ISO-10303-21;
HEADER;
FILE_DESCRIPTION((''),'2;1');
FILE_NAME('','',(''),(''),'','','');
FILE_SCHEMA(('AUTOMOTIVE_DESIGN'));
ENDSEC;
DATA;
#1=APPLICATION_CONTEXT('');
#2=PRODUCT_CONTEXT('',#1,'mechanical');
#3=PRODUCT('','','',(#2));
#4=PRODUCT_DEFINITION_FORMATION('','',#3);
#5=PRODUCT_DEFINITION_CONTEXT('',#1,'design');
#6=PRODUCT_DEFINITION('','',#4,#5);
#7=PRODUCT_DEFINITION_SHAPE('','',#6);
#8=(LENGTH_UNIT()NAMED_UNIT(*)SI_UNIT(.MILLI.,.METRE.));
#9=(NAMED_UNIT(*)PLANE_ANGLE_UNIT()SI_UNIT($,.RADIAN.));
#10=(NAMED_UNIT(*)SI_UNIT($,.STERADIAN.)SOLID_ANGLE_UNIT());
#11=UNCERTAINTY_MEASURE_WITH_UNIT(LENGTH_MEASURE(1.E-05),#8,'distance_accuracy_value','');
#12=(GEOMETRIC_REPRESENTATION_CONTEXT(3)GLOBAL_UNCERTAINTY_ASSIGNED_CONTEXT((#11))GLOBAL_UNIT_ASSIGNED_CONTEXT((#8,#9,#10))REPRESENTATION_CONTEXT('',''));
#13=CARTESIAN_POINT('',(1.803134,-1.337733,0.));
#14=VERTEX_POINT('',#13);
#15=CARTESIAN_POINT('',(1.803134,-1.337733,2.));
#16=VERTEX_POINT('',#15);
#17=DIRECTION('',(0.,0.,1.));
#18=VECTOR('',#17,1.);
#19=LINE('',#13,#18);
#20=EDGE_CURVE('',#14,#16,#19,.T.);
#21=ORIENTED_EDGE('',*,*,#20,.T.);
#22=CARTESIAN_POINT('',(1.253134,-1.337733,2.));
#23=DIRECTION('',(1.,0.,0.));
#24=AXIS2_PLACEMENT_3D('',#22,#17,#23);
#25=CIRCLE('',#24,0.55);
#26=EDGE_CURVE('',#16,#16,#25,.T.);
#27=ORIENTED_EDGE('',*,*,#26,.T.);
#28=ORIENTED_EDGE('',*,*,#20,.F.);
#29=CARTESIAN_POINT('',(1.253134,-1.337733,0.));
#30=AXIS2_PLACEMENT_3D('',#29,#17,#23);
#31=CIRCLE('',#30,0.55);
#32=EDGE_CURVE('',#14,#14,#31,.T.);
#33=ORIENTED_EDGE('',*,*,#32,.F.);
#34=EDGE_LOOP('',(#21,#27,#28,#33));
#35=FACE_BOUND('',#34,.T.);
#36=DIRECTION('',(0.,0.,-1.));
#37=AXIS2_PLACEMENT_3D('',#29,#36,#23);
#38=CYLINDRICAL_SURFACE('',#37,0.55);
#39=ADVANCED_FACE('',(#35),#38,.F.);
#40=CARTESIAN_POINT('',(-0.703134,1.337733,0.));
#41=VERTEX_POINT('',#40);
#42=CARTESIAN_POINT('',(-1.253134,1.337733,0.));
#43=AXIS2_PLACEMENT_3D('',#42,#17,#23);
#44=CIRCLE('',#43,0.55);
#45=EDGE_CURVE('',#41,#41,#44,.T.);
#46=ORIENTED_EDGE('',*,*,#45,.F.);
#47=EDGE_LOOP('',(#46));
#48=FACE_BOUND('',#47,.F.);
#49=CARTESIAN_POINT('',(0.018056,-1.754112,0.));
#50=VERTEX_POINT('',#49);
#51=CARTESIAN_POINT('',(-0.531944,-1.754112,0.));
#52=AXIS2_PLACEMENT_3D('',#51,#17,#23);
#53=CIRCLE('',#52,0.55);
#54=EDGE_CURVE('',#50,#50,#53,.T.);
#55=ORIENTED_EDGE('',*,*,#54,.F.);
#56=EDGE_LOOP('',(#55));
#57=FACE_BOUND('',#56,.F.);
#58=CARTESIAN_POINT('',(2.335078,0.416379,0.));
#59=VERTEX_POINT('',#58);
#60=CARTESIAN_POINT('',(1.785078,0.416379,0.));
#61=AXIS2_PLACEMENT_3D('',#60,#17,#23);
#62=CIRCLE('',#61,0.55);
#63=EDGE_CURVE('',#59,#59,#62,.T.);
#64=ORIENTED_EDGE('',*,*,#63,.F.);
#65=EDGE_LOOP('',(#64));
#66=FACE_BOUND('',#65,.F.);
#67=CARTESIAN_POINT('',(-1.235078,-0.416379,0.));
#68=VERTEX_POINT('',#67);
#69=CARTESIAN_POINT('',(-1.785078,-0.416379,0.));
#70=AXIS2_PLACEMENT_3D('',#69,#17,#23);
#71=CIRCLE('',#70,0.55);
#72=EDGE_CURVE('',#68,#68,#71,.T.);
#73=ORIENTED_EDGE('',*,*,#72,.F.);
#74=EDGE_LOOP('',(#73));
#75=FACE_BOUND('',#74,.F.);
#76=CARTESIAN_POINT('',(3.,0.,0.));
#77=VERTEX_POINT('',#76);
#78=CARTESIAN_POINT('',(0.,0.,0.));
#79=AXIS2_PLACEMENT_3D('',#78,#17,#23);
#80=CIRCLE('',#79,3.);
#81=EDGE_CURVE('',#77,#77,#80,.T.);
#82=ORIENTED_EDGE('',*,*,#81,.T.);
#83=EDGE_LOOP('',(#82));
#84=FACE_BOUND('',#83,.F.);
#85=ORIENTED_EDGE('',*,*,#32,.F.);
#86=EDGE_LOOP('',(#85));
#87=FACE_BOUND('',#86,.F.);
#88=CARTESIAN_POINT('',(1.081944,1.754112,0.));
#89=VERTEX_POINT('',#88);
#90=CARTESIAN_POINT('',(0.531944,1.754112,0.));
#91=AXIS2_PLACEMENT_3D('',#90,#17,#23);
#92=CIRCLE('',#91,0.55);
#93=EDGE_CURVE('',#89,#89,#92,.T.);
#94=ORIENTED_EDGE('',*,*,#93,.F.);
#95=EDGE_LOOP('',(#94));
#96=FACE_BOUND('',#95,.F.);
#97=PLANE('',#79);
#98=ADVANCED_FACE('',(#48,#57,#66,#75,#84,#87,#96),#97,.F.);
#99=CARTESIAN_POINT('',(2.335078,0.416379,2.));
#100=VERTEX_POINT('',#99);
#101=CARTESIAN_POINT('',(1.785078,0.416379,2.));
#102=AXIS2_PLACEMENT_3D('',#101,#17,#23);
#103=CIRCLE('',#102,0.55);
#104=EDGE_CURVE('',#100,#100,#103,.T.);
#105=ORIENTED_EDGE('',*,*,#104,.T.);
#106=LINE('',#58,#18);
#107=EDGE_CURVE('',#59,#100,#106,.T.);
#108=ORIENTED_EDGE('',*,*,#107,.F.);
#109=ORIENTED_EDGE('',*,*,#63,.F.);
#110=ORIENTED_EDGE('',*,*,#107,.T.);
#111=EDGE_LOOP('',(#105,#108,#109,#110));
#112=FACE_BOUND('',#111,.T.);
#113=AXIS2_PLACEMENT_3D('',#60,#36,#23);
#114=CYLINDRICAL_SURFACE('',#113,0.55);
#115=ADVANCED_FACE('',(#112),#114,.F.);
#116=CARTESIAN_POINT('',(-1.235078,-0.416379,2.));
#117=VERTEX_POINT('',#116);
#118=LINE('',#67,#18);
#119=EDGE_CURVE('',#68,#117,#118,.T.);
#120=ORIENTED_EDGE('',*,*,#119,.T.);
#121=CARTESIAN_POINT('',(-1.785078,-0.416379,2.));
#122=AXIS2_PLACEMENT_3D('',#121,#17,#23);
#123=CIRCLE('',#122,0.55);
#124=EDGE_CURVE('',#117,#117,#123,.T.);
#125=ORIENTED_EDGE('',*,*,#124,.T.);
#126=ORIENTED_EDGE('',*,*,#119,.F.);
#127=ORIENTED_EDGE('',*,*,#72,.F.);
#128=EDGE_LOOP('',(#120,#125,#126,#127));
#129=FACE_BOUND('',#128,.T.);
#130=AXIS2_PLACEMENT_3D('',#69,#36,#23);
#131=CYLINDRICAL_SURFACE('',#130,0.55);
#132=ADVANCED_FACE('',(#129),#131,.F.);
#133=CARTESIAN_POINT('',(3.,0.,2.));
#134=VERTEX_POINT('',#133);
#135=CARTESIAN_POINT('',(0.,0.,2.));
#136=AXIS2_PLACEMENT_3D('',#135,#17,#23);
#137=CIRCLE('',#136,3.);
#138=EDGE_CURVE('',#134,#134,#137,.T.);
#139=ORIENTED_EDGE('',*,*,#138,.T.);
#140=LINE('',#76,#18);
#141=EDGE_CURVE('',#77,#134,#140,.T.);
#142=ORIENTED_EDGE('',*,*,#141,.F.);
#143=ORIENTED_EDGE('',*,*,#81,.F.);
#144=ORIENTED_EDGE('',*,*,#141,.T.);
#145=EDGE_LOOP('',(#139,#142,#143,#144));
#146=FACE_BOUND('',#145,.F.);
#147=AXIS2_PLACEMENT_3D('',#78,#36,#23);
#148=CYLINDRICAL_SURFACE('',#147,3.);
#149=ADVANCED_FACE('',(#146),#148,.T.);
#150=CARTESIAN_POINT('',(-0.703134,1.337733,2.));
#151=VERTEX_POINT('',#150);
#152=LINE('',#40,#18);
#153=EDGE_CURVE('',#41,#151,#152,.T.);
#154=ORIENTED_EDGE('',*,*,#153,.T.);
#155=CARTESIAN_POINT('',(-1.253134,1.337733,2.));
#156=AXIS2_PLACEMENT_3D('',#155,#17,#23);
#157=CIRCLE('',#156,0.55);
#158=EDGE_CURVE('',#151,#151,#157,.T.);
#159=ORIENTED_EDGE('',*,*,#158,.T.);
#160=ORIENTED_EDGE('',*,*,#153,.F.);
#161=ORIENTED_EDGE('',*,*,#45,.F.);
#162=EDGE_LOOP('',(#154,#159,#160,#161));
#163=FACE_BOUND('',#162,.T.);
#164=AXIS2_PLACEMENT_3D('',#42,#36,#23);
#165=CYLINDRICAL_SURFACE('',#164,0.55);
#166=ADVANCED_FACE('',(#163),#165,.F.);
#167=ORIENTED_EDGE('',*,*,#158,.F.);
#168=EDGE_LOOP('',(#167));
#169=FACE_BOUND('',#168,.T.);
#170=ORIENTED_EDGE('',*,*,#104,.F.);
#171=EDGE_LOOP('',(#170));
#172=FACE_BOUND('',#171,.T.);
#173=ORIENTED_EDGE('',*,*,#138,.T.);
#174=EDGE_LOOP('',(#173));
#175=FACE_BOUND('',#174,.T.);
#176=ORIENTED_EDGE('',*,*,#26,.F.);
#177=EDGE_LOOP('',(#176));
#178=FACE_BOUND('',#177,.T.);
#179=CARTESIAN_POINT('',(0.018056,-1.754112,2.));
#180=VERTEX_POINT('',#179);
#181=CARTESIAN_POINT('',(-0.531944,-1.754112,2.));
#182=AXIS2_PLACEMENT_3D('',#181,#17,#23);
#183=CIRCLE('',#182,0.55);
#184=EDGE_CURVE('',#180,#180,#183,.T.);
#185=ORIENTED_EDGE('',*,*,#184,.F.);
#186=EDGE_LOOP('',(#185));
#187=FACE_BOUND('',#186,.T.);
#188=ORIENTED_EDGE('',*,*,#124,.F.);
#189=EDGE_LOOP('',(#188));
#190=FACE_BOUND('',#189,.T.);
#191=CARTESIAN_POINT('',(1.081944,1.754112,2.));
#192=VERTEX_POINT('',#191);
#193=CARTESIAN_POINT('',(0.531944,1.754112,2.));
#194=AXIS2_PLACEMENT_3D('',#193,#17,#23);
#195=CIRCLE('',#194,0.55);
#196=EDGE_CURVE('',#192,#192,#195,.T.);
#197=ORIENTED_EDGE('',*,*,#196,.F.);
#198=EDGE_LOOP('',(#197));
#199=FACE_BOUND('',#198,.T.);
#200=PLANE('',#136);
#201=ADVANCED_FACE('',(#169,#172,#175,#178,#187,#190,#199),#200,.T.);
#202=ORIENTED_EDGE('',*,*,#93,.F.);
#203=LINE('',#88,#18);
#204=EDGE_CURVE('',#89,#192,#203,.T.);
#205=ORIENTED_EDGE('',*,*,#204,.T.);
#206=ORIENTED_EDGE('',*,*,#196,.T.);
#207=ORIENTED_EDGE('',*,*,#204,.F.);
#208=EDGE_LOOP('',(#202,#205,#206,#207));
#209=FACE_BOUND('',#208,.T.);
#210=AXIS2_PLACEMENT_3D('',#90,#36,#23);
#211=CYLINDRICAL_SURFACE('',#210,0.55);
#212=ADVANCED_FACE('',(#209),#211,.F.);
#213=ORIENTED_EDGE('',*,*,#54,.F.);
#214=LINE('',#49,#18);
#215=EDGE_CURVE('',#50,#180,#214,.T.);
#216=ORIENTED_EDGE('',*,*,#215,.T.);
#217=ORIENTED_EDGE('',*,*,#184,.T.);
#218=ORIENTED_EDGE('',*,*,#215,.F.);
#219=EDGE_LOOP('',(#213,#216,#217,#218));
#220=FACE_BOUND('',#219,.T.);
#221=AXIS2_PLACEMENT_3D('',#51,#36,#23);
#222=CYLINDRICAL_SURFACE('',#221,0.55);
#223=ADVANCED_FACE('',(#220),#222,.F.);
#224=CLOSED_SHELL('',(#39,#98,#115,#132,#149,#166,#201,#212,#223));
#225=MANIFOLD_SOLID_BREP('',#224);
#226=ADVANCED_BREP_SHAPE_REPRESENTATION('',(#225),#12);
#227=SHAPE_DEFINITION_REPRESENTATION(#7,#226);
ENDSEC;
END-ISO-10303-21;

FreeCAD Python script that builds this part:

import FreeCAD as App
import Part
import Sketcher
from FreeCAD import Vector
Q = App.Units.Quantity

doc = App.newDocument("Part")
params = doc.addObject("Spreadsheet::Sheet", "Params")
for row, (alias, value) in enumerate([
    ("sketch1_diameter", "6 mm"),
    ("pad1_length", "2 mm"),
    ("sketch2_diameter", "1.1 mm"),
    ("pocket1_length", "2 mm"),
], start=1):
    params.set(f"A{row}", alias)
    params.set(f"B{row}", "=" + value)
    params.setAlias(f"B{row}", alias)

body = doc.addObject("PartDesign::Body", "Body")

# Sketch on XY plane
sketch1 = body.newObject("Sketcher::SketchObject", "Sketch")
sketch1.AttachmentSupport = (doc.getObject("XY_Plane"), [""])
sketch1.MapMode = "FlatFace"
sketch1.addGeometry(Part.Circle(Vector(0, 0, 0), Vector(0, 0, 1), 3), False)
sketch1.addConstraint([
    Sketcher.Constraint("Coincident", 0, 3, -1, 1),
    Sketcher.Constraint("Diameter", 0, Q("6 mm")),
])
sketch1.setExpression("Constraints[1]", "Params.sketch1_diameter")
pad1 = body.newObject("PartDesign::Pad", "Pad")
pad1.Profile = sketch1
pad1.setExpression("Length", "Params.pad1_length")

# Sketch on XY plane
sketch2 = body.newObject("Sketcher::SketchObject", "Sketch001")
sketch2.AttachmentSupport = (doc.getObject("XY_Plane"), [""])
sketch2.MapMode = "FlatFace"
sketch2.addGeometry([
    Part.Circle(Vector(-1.253134, 1.337733, 0), Vector(0, 0, 1), 0.55),  # 0
    Part.Circle(Vector(-1.785078, -0.416379, 0), Vector(0, 0, 1), 0.55),  # 1
    Part.Circle(Vector(-0.531944, -1.754112, 0), Vector(0, 0, 1), 0.55),  # 2
    Part.Circle(Vector(1.253134, -1.337733, 0), Vector(0, 0, 1), 0.55),  # 3
    Part.Circle(Vector(1.785078, 0.416379, 0), Vector(0, 0, 1), 0.55),  # 4
    Part.Circle(Vector(0.531944, 1.754112, 0), Vector(0, 0, 1), 0.55),  # 5
], False)
sketch2.addConstraint([
    Sketcher.Constraint("Equal", 0, 1),
    Sketcher.Constraint("Equal", 1, 2),
    Sketcher.Constraint("Equal", 2, 3),
    Sketcher.Constraint("Equal", 3, 4),
    Sketcher.Constraint("Equal", 4, 5),
    Sketcher.Constraint("Symmetric", 0, 3, 3, 3, -1, 1),
    Sketcher.Constraint("Symmetric", 1, 3, 4, 3, -1, 1),
    Sketcher.Constraint("Symmetric", 2, 3, 5, 3, -1, 1),
    Sketcher.Constraint("Diameter", 0, Q("1.1 mm")),
    Sketcher.Constraint("DistanceY", 1, 3, -1, 1, Q("0.416379 mm")),
    Sketcher.Constraint("DistanceY", 2, 3, -1, 1, Q("1.754112 mm")),
    Sketcher.Constraint("DistanceX", 0, 3, 2, 3, Q("0.72119 mm")),
    Sketcher.Constraint("DistanceY", 2, 3, 3, 3, Q("0.416379 mm")),
    Sketcher.Constraint("DistanceX", 1, 3, 3, 3, Q("3.038212 mm")),
    Sketcher.Constraint("DistanceX", 0, 3, -1, 1, Q("1.253134 mm")),
])
sketch2.setExpression("Constraints[8]", "Params.sketch2_diameter")
pocket1 = body.newObject("PartDesign::Pocket", "Pocket")
pocket1.Profile = sketch2
pocket1.setExpression("Length", "Params.pocket1_length")
pocket1.Reversed = True

doc.recompute()
